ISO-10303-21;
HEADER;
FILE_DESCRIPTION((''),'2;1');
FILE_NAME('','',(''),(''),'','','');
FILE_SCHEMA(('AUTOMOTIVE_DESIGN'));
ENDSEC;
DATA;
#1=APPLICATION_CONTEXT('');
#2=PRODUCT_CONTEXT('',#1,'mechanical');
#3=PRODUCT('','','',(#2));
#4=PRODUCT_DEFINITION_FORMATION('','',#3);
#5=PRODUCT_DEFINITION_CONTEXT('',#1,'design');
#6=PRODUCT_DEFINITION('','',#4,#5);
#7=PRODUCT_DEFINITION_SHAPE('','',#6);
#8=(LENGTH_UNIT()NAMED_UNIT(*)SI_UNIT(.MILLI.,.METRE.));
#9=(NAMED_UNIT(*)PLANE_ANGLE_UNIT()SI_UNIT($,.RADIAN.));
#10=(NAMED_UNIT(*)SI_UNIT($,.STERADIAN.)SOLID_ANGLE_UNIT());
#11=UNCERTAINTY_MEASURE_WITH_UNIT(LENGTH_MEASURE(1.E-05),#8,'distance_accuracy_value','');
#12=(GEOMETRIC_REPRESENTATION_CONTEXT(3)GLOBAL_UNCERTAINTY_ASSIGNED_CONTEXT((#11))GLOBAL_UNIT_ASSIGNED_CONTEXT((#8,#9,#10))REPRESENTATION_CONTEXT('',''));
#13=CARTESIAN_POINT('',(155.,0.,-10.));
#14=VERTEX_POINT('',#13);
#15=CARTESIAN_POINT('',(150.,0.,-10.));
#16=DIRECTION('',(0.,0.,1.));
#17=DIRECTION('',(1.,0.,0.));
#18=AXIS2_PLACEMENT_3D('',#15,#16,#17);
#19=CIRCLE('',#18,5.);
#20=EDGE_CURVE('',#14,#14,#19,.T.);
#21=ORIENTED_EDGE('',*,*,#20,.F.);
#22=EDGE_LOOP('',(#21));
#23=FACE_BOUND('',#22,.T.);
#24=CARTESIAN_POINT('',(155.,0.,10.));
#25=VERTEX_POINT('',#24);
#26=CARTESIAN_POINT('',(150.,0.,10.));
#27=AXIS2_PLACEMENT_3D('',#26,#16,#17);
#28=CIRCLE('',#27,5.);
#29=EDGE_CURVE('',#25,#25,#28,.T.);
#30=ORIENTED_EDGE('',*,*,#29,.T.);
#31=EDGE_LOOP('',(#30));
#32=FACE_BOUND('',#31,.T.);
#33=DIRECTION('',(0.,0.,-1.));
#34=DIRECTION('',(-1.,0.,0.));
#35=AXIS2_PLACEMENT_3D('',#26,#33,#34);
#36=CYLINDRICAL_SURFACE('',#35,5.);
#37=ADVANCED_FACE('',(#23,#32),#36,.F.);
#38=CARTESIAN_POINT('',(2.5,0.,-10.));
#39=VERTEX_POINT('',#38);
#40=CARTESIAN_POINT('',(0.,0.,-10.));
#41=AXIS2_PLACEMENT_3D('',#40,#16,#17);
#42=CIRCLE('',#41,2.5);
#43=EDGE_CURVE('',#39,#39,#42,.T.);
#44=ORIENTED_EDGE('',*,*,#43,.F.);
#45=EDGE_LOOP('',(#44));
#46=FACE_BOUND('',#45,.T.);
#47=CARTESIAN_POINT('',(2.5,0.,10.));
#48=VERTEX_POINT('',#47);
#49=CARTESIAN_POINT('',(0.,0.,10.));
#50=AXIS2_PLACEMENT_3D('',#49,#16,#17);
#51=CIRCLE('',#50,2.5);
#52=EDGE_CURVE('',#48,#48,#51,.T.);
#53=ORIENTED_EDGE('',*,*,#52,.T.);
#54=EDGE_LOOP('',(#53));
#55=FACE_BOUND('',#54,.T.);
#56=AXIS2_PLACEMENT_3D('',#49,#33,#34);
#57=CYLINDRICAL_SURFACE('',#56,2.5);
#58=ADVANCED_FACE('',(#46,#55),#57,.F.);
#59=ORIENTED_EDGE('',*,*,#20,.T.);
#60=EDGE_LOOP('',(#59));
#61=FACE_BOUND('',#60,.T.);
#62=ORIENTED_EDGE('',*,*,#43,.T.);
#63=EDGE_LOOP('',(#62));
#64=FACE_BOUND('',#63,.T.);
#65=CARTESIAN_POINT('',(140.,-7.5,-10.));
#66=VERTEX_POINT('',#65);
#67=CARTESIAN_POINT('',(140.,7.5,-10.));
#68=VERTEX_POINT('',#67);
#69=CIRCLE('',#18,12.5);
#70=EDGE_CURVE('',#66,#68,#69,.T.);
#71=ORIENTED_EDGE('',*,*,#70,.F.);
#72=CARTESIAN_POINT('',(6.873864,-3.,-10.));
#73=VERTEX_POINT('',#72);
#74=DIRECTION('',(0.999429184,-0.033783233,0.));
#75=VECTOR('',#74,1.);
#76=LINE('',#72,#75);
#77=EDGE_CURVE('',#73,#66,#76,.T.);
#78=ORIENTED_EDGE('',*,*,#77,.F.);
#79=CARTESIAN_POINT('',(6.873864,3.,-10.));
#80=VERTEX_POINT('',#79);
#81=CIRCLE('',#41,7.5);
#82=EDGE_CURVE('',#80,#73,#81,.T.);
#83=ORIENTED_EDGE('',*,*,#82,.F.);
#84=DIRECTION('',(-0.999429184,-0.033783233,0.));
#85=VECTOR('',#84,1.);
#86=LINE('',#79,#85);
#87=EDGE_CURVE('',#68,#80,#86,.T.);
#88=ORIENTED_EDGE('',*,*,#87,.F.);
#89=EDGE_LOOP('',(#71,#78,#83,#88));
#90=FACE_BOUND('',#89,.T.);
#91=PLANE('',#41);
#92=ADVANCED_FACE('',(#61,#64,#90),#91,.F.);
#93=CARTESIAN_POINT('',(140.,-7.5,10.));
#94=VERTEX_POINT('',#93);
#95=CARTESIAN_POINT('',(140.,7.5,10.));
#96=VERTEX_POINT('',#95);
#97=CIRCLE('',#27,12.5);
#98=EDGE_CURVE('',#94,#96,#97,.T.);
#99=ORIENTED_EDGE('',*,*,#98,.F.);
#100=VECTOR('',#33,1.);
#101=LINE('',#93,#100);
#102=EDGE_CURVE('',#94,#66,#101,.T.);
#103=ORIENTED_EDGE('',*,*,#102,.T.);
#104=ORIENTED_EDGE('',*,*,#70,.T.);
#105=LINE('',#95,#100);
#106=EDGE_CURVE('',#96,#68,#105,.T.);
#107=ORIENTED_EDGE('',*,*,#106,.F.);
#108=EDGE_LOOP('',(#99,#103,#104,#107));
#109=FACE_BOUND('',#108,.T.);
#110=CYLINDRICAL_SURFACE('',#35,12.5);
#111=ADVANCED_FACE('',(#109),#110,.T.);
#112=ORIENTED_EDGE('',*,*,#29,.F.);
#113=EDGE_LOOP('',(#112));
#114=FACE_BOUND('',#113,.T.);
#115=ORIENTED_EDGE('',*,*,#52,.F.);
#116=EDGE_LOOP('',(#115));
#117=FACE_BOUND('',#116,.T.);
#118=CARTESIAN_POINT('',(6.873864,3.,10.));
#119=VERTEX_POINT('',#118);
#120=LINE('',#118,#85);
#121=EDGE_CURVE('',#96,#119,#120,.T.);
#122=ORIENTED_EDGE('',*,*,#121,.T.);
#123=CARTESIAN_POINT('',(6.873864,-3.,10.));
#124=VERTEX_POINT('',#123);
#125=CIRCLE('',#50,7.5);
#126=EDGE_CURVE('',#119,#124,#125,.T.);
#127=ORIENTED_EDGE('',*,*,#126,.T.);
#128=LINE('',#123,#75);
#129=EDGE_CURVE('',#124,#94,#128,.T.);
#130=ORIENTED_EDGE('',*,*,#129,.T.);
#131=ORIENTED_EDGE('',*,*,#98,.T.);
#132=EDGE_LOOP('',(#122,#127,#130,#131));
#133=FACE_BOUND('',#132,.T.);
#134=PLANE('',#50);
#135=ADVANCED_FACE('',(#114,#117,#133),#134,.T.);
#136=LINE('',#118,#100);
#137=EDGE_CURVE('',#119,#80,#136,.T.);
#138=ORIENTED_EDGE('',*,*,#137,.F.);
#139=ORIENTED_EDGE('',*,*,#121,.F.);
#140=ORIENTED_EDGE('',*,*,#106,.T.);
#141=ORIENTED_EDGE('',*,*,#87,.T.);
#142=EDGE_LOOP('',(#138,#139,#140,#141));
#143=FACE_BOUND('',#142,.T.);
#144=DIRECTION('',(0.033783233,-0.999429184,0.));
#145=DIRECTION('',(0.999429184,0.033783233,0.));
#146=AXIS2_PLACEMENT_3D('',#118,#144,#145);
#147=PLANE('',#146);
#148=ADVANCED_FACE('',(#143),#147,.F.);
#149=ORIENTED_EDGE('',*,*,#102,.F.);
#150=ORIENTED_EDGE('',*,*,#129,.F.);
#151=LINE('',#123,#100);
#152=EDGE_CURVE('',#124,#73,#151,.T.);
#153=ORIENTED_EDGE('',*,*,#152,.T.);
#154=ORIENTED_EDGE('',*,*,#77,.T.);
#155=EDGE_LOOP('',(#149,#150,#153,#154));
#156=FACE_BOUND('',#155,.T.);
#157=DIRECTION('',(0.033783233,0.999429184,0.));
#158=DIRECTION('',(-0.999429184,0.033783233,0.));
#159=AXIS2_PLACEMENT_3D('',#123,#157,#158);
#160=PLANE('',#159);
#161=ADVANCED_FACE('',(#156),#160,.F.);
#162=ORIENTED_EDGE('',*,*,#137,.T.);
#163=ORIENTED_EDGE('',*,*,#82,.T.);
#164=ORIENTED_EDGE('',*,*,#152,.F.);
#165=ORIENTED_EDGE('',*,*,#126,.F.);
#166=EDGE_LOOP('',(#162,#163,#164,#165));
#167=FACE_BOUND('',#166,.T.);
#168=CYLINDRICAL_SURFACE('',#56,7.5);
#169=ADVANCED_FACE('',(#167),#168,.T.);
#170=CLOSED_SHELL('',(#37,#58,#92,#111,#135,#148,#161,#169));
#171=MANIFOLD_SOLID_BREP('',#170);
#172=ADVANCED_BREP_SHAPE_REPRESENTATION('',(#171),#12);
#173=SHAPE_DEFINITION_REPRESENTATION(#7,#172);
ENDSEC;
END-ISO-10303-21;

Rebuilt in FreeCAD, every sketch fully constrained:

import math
import FreeCAD as App
import Part
import Sketcher

doc = App.newDocument("Part")
body = doc.addObject("PartDesign::Body", "Body")

sketch1 = doc.addObject("Sketcher::SketchObject", "Sketch")
body.addObject(sketch1)
sketch1.AttachmentSupport = (doc.XY_Plane, [""])
sketch1.MapMode = "FlatFace"
sketch1.addGeometry([
    Part.LineSegment(App.Vector(140, 7.5, 0), App.Vector(6.873864, 3, 0)),
    Part.ArcOfCircle(Part.Circle(App.Vector(0, 0, 0), App.Vector(0, 0, 1), 7.5), math.radians(23.578178), math.radians(336.421822)),
    Part.LineSegment(App.Vector(6.873864, -3, 0), App.Vector(140, -7.5, 0)),
    Part.ArcOfCircle(Part.Circle(App.Vector(150, 0, 0), App.Vector(0, 0, 1), 12.5), math.radians(-143.130102), math.radians(143.130102)),
    Part.Circle(App.Vector(150, 0, 0), App.Vector(0, 0, 1), 5),
    Part.Circle(App.Vector(0, 0, 0), App.Vector(0, 0, 1), 2.5),
], False)
sketch1.addConstraint([
    Sketcher.Constraint("Coincident", 0, 2, 1, 1),
    Sketcher.Constraint("Coincident", 1, 2, 2, 1),
    Sketcher.Constraint("Coincident", 2, 2, 3, 1),
    Sketcher.Constraint("Coincident", 3, 2, 0, 1),
    Sketcher.Constraint("Coincident", 1, 3, -1, 1),
    Sketcher.Constraint("Coincident", 5, 3, -1, 1),
    Sketcher.Constraint("Coincident", 4, 3, 3, 3),
    Sketcher.Constraint("Symmetric", 2, 2, 3, 2, -1),
    Sketcher.Constraint("Vertical", 0, 2, 1, 2),
    Sketcher.Constraint("Diameter", 4, 10.0),
    Sketcher.Constraint("Diameter", 5, 5.0),
    Sketcher.Constraint("Radius", 1, 7.5),
    Sketcher.Constraint("Radius", 3, 12.5),
    Sketcher.Constraint("DistanceX", -1, 1, 3, 3, 150.0),
    Sketcher.Constraint("DistanceY", -1, 1, 0, 2, 3.0),
    Sketcher.Constraint("DistanceX", -1, 1, 2, 2, 140.0),
])
pad1 = doc.addObject("PartDesign::Pad", "Pad")
body.addObject(pad1)
pad1.Profile = sketch1
pad1.Length = 20
pad1.Midplane = True

doc.recompute()
